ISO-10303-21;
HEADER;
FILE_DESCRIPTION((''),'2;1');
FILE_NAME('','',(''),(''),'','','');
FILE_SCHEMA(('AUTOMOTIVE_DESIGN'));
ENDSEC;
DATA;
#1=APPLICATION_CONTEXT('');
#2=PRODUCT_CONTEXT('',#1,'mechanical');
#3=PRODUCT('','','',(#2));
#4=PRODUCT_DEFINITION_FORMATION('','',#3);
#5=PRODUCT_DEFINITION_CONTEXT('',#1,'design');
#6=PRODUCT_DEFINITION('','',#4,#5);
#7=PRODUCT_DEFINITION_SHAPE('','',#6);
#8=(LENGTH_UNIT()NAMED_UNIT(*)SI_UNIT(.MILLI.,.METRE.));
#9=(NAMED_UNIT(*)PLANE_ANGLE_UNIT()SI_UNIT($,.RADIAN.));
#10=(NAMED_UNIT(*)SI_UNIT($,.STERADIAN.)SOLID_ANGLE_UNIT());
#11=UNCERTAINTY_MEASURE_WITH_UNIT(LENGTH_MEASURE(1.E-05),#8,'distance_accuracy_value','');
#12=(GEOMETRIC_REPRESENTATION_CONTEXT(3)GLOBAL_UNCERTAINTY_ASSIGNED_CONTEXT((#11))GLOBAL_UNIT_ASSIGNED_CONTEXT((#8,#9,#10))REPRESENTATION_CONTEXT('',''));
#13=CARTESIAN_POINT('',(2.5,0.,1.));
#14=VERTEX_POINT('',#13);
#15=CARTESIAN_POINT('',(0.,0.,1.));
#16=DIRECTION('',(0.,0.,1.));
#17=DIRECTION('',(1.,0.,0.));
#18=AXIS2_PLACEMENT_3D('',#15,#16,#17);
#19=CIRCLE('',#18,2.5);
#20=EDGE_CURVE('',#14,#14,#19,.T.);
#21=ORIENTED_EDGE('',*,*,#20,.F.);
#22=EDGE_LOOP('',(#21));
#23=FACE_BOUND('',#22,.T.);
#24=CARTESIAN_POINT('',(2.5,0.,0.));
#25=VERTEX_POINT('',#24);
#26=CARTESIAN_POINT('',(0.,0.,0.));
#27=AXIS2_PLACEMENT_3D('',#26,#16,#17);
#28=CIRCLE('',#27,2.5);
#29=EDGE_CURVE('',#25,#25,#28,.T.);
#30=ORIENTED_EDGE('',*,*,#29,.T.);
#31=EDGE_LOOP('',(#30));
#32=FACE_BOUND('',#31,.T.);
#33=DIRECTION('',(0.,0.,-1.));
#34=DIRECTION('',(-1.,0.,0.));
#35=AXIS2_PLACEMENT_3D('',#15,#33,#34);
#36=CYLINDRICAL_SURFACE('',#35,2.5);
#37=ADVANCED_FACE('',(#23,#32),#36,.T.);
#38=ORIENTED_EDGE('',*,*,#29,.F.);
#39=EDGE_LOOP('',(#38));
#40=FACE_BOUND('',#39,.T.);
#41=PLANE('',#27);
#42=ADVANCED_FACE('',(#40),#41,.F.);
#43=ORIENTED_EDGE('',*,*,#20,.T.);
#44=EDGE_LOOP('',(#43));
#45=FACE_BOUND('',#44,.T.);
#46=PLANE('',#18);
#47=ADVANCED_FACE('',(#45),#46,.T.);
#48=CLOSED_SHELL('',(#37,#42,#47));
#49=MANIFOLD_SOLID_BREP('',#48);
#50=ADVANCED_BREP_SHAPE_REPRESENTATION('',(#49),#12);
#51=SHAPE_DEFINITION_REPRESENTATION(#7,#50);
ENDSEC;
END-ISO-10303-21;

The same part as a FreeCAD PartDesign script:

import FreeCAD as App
import Part
import Sketcher
from FreeCAD import Vector

doc = App.newDocument("Part")
body = doc.addObject("PartDesign::Body", "Body")

# Sketch on XY plane
sketch1 = body.newObject("Sketcher::SketchObject", "Sketch")
sketch1.AttachmentSupport = (doc.getObject("XY_Plane"), [""])
sketch1.MapMode = "FlatFace"
sketch1.addGeometry(Part.Circle(Vector(0, 0, 0), Vector(0, 0, 1), 2.5), False)
sketch1.addConstraint(Sketcher.Constraint("Coincident", 0, 3, -1, 1))
sketch1.addConstraint(Sketcher.Constraint("Diameter", 0, 5.0))
pad1 = body.newObject("PartDesign::Pad", "Pad")
pad1.Profile = sketch1
pad1.Length = 1

doc.recompute()
